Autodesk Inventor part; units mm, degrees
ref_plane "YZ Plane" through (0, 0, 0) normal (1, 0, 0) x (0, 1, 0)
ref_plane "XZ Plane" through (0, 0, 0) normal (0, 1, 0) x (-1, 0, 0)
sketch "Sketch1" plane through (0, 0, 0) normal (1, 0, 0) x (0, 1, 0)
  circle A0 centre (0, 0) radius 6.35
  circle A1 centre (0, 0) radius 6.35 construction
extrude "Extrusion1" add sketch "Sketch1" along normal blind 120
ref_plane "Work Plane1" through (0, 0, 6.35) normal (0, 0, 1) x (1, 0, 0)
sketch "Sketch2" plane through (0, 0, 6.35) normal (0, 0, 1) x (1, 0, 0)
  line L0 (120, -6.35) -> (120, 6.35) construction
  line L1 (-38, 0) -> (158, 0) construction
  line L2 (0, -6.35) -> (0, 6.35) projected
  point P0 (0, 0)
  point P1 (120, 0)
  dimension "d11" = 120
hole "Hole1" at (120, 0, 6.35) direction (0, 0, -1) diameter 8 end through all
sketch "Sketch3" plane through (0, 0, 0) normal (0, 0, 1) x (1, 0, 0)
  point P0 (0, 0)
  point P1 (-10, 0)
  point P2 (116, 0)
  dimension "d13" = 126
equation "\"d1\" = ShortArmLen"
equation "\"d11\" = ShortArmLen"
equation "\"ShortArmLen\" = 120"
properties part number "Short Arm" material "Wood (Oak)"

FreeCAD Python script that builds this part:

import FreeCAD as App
import Part
import Sketcher

V = App.Vector
Q = App.Units.Quantity

doc = App.newDocument("Part")
params = doc.addObject("Spreadsheet::Sheet", "Params")
for row, (alias, value) in enumerate([
    ("sketch1_diameter", "12.7 mm"),
    ("pad1_length", "120 mm"),
    ("sketch2_diameter", "8 mm"),
    ("hole_diameter", "8 mm"),
], start=1):
    params.set(f"A{row}", alias)
    params.set(f"B{row}", "=" + value)
    params.setAlias(f"B{row}", alias)

body = doc.addObject("PartDesign::Body", "Body")

# Sketch on YZ plane
sketch1 = doc.addObject("Sketcher::SketchObject", "Sketch")
body.addObject(sketch1)
sketch1.AttachmentSupport = (doc.YZ_Plane, [""])
sketch1.MapMode = "FlatFace"
sketch1.addGeometry(Part.Circle(V(0, 0, 0), V(0, 0, 1), 6), False)
sketch1.addConstraint(Sketcher.Constraint("Coincident", 0, 3, -1, 1))
sketch1.addConstraint(Sketcher.Constraint("Diameter", 0, Q("12.7 mm")))
sketch1.setExpression("Constraints[1]", "Params.sketch1_diameter")
pad1 = doc.addObject("PartDesign::Pad", "Pad")
body.addObject(pad1)
pad1.Profile = sketch1
pad1.setExpression("Length", "Params.pad1_length")

# Sketch on XY plane
sketch2 = doc.addObject("Sketcher::SketchObject", "Sketch001")
body.addObject(sketch2)
sketch2.AttachmentSupport = (doc.XY_Plane, [""])
sketch2.MapMode = "FlatFace"
sketch2.AttachmentOffset = App.Placement(V(0, 0, 6.35), App.Rotation())
sketch2.addGeometry(Part.Circle(V(120, 0, 0), V(0, 0, 1), 4), False)
sketch2.addConstraint(Sketcher.Constraint("PointOnObject", 0, 3, -1))
sketch2.addConstraint(Sketcher.Constraint("Diameter", 0, Q("8 mm")))
sketch2.addConstraint(Sketcher.Constraint("DistanceX", -1, 1, 0, 3, Q("120 mm")))
sketch2.setExpression("Constraints[1]", "Params.sketch2_diameter")
doc.recompute()
hole = doc.addObject("PartDesign::Hole", "Hole")
body.addObject(hole)
hole.Profile = sketch2
hole.ThreadType = "None"
hole.setExpression("Diameter", "Params.hole_diameter")
hole.DepthType = "ThroughAll"

doc.recompute()
